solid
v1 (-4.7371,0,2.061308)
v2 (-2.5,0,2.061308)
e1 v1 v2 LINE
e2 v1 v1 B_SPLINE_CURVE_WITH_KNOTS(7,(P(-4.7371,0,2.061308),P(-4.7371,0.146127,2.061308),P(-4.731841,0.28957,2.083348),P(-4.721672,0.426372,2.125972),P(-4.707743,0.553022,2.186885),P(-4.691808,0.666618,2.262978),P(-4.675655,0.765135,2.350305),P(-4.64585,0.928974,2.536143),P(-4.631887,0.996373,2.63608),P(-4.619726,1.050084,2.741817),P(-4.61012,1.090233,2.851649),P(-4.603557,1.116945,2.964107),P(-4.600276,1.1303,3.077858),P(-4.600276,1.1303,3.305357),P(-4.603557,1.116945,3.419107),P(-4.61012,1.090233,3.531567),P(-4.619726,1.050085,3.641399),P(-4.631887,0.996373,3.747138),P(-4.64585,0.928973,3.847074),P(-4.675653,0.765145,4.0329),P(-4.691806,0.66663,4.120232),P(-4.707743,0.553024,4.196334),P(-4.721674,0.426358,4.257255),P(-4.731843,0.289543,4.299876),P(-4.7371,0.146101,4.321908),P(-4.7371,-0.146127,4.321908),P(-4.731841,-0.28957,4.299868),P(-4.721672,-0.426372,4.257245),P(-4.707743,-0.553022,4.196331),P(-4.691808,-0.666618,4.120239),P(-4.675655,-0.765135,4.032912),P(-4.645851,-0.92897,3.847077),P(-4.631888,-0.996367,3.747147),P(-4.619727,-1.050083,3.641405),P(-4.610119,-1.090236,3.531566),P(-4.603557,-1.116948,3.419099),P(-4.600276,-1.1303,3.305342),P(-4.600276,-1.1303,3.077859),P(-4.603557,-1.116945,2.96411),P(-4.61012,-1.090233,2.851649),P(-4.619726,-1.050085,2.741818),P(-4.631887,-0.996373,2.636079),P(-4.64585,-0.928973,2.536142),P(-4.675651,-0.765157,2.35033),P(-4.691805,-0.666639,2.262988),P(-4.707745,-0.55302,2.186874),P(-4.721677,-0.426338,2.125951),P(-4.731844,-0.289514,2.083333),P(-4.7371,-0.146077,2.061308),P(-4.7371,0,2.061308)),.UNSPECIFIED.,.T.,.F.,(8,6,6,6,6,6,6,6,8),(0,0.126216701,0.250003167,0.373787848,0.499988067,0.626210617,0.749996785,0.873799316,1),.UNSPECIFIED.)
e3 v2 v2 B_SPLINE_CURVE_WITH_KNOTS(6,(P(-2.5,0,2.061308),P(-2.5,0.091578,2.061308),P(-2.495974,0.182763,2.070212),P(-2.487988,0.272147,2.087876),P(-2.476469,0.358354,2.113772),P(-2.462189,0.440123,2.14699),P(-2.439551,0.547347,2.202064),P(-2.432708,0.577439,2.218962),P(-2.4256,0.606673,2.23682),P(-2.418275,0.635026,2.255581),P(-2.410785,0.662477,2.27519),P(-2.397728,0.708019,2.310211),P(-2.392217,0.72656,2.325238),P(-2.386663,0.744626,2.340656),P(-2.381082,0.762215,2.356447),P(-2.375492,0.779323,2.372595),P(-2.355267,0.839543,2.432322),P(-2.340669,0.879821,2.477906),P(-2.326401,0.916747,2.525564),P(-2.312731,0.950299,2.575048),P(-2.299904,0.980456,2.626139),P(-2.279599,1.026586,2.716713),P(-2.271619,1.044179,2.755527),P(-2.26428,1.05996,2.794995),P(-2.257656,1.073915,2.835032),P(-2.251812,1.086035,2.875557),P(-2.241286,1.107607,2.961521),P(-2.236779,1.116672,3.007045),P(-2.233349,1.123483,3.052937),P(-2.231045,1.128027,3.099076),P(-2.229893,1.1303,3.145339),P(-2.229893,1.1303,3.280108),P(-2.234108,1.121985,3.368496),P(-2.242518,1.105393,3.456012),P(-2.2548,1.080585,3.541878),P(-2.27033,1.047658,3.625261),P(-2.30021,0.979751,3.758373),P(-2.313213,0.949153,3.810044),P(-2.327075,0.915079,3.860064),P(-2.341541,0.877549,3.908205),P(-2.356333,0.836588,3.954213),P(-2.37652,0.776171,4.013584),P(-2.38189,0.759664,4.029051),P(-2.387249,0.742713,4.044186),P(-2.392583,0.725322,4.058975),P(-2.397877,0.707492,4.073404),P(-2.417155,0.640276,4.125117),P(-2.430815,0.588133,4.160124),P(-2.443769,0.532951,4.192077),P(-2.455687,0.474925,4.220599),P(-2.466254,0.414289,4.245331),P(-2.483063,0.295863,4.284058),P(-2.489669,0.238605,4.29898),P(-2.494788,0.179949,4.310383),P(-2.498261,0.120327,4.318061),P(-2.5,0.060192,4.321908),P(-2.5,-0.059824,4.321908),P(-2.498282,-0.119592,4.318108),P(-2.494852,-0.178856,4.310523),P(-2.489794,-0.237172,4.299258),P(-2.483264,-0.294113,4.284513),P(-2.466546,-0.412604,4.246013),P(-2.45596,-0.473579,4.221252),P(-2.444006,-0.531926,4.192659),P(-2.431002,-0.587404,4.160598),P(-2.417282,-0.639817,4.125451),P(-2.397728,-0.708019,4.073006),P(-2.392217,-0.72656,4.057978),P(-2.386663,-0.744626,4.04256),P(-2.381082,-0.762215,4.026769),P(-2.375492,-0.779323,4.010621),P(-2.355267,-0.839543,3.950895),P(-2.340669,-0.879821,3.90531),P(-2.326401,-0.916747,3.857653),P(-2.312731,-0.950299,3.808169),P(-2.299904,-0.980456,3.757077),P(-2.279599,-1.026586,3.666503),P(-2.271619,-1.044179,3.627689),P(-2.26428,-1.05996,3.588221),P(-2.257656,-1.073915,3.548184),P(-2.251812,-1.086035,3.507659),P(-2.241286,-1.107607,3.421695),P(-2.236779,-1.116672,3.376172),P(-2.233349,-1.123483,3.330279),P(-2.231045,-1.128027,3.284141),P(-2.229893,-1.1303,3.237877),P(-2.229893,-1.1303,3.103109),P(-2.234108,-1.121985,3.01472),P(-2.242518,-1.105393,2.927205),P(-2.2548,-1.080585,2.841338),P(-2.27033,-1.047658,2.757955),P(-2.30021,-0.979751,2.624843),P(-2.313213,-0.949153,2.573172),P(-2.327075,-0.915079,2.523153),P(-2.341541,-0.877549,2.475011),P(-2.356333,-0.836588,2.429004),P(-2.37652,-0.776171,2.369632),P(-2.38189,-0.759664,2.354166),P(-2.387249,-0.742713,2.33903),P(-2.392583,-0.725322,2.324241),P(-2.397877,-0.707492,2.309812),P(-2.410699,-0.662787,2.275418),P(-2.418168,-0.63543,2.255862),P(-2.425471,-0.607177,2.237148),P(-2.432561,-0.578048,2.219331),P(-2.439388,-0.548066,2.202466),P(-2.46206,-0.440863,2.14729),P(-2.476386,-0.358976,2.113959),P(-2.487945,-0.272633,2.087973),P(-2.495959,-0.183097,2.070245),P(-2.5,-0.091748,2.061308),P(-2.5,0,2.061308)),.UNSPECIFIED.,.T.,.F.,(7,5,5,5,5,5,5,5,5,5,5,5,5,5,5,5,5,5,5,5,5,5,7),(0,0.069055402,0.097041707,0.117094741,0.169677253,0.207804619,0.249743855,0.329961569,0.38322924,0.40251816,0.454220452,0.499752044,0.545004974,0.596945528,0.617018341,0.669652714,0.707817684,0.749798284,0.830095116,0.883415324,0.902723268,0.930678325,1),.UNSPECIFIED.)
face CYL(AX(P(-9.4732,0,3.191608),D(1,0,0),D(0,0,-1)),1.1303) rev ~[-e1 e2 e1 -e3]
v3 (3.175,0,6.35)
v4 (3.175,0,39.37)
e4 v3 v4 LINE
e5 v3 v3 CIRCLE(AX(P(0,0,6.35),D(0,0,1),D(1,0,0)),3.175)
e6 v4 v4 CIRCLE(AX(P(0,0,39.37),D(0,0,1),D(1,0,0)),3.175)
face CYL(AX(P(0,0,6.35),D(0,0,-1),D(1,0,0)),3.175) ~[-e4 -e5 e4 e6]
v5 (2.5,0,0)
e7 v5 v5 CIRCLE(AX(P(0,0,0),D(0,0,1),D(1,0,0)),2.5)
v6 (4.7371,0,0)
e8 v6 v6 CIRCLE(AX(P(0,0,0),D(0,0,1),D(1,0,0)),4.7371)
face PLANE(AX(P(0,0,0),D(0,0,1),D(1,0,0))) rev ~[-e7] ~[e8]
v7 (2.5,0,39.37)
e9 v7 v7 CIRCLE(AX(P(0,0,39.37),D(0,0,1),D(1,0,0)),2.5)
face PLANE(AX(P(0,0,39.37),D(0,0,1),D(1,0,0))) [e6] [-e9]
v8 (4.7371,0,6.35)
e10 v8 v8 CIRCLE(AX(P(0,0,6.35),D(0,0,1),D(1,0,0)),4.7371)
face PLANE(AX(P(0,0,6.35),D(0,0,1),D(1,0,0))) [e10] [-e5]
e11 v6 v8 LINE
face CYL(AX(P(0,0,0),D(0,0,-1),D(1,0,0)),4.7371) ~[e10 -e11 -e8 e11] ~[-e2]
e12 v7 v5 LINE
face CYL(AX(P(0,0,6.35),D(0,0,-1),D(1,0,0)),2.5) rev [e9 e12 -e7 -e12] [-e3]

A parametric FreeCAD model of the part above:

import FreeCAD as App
import Part
import Sketcher
from FreeCAD import Vector
Q = App.Units.Quantity

doc = App.newDocument("Part")
body = doc.addObject("PartDesign::Body", "Body")

# Sketch on XY plane
sketch1 = body.newObject("Sketcher::SketchObject", "Sketch")
sketch1.AttachmentSupport = (doc.getObject("XY_Plane"), [""])
sketch1.MapMode = "FlatFace"
sketch1.addGeometry([
    Part.Circle(Vector(0, 0, 0), Vector(0, 0, 1), 4.7),
    Part.Circle(Vector(0, 0, 0), Vector(0, 0, 1), 2.5),
], False)
sketch1.addConstraint([
    Sketcher.Constraint("Coincident", 0, 3, -1, 1),
    Sketcher.Constraint("Coincident", 1, 3, -1, 1),
    Sketcher.Constraint("Diameter", 0, Q("0.373 in")),
    Sketcher.Constraint("Diameter", 1, Q("5 mm")),
])
pad1 = body.newObject("PartDesign::Pad", "Pad")
pad1.Profile = sketch1
pad1.Length = Q("0.25 in")

# Sketch on XY plane
sketch2 = body.newObject("Sketcher::SketchObject", "Sketch001")
sketch2.AttachmentSupport = (doc.getObject("XY_Plane"), [""])
sketch2.MapMode = "FlatFace"
sketch2.AttachmentOffset = App.Placement(Vector(0, 0, 0.25 * 25.4), App.Rotation())
sketch2.addGeometry([
    Part.Circle(Vector(0, 0, 0), Vector(0, 0, 1), 3.2),
    Part.Circle(Vector(0, 0, 0), Vector(0, 0, 1), 2.5),
], False)
sketch2.addConstraint([
    Sketcher.Constraint("Coincident", 0, 3, -1, 1),
    Sketcher.Constraint("Coincident", 1, 3, -1, 1),
    Sketcher.Constraint("Diameter", 0, Q("0.25 in")),
    Sketcher.Constraint("Diameter", 1, Q("5 mm")),
])
pad2 = body.newObject("PartDesign::Pad", "Pad001")
pad2.Profile = sketch2
pad2.Length = Q("1.3 in")

# Sketch on YZ plane
sketch3 = body.newObject("Sketcher::SketchObject", "Sketch002")
sketch3.AttachmentSupport = (doc.getObject("YZ_Plane"), [""])
sketch3.MapMode = "FlatFace"
sketch3.AttachmentOffset = App.Placement(Vector(0, 0, -0.1865 * 25.4), App.Rotation())
sketch3.addGeometry(Part.Circle(Vector(0, 3.2, 0), Vector(0, 0, 1), 1.1), False)
sketch3.addConstraint([
    Sketcher.Constraint("PointOnObject", 0, 3, -2),
    Sketcher.Constraint("Diameter", 0, Q("0.089 in")),
    Sketcher.Constraint("DistanceY", -1, 1, 0, 3, Q("3.191608 mm")),
])
doc.recompute()
hole = body.newObject("PartDesign::Hole", "Hole")
hole.Profile = sketch3
hole.ThreadType = "None"
hole.Diameter = Q("0.089 in")
hole.DepthType = "Dimension"
hole.Depth = 4.7361
hole.DrillPoint = "Angled"
hole.DrillPointAngle = 118
hole.Reversed = True

doc.recompute()
